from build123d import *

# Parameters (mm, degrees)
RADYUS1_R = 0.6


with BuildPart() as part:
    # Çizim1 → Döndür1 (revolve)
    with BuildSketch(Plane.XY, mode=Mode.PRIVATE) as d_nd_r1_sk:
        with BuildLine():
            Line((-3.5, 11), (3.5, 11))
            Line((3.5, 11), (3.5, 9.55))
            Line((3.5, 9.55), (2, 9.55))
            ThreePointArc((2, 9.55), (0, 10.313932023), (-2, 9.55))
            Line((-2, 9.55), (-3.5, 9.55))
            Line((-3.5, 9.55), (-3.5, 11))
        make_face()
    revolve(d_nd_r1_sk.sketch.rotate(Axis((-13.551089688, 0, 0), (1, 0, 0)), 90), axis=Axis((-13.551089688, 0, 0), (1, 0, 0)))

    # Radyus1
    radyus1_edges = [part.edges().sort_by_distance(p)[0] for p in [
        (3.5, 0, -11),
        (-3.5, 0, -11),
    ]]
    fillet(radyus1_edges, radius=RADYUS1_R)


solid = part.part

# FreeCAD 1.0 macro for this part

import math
import FreeCAD as App
import Part
import Sketcher

V = App.Vector


def edges_at(feature, points):
    """Names of the edges that pass closest to the given points."""
    edges = feature.Shape.Edges
    near = lambda p: min(range(len(edges)), key=lambda i: edges[i].distToShape(Part.Vertex(*p))[0])
    return sorted({f"Edge{near(p) + 1}" for p in points})

doc = App.newDocument("Part")
body = doc.addObject("PartDesign::Body", "Body")

# Sketch on XY plane
sketch1 = doc.addObject("Sketcher::SketchObject", "Sketch")
body.addObject(sketch1)
sketch1.AttachmentSupport = (doc.XY_Plane, [""])
sketch1.MapMode = "FlatFace"
sketch1.addGeometry(Part.LineSegment(V(3.5, 11, 0), V(-3.5, 11, 0)), False)
sketch1.addGeometry(Part.LineSegment(V(-3.5, 11, 0), V(-3.5, 9.6, 0)), False)
sketch1.addGeometry(Part.LineSegment(V(-3.5, 9.6, 0), V(-2, 9.6, 0)), False)
sketch1.addGeometry(Part.ArcOfCircle(Part.Circle(V(0, 7.3, 0), V(0, 0, 1), 3), math.radians(48), math.radians(132)), False)
sketch1.addGeometry(Part.LineSegment(V(2, 9.6, 0), V(3.5, 9.6, 0)), False)
sketch1.addGeometry(Part.LineSegment(V(3.5, 9.6, 0), V(3.5, 11, 0)), False)
sketch1.addConstraint(Sketcher.Constraint("Coincident", 0, 2, 1, 1))
sketch1.addConstraint(Sketcher.Constraint("Coincident", 1, 2, 2, 1))
sketch1.addConstraint(Sketcher.Constraint("Coincident", 2, 2, 3, 2))
sketch1.addConstraint(Sketcher.Constraint("Coincident", 3, 1, 4, 1))
sketch1.addConstraint(Sketcher.Constraint("Coincident", 4, 2, 5, 1))
sketch1.addConstraint(Sketcher.Constraint("Coincident", 5, 2, 0, 1))
sketch1.addConstraint(Sketcher.Constraint("Horizontal", 0))
sketch1.addConstraint(Sketcher.Constraint("Vertical", 1))
sketch1.addConstraint(Sketcher.Constraint("Horizontal", 2))
sketch1.addConstraint(Sketcher.Constraint("Horizontal", 4))
sketch1.addConstraint(Sketcher.Constraint("Vertical", 5))
sketch1.addConstraint(Sketcher.Constraint("Symmetric", 2, 2, 3, 1, -2))
sketch1.addConstraint(Sketcher.Constraint("Equal", 2, 4))
sketch1.addConstraint(Sketcher.Constraint("Radius", 3, 3.0))
sketch1.addConstraint(Sketcher.Constraint("DistanceX", 0, 2, 0, 1, 7.0))
sketch1.addConstraint(Sketcher.Constraint("DistanceX", 2, 1, 2, 2, 1.5))
sketch1.addConstraint(Sketcher.Constraint("DistanceY", -1, 1, 0, 2, 11.0))
sketch1.addConstraint(Sketcher.Constraint("DistanceY", 1, 2, 1, 1, 1.45))
revolution = doc.addObject("PartDesign::Revolution", "Revolution")
body.addObject(revolution)
revolution.Profile = sketch1
revolution.ReferenceAxis = (sketch1, ["H_Axis"])
revolution.Angle = 360
doc.recompute()

fillet = doc.addObject("PartDesign::Fillet", "Fillet")
body.addObject(fillet)
fillet.Base = (revolution, edges_at(revolution, [(3.5, 0, -11), (-3.5, 0, -11)]))
fillet.Radius = 0.6

doc.recompute()
